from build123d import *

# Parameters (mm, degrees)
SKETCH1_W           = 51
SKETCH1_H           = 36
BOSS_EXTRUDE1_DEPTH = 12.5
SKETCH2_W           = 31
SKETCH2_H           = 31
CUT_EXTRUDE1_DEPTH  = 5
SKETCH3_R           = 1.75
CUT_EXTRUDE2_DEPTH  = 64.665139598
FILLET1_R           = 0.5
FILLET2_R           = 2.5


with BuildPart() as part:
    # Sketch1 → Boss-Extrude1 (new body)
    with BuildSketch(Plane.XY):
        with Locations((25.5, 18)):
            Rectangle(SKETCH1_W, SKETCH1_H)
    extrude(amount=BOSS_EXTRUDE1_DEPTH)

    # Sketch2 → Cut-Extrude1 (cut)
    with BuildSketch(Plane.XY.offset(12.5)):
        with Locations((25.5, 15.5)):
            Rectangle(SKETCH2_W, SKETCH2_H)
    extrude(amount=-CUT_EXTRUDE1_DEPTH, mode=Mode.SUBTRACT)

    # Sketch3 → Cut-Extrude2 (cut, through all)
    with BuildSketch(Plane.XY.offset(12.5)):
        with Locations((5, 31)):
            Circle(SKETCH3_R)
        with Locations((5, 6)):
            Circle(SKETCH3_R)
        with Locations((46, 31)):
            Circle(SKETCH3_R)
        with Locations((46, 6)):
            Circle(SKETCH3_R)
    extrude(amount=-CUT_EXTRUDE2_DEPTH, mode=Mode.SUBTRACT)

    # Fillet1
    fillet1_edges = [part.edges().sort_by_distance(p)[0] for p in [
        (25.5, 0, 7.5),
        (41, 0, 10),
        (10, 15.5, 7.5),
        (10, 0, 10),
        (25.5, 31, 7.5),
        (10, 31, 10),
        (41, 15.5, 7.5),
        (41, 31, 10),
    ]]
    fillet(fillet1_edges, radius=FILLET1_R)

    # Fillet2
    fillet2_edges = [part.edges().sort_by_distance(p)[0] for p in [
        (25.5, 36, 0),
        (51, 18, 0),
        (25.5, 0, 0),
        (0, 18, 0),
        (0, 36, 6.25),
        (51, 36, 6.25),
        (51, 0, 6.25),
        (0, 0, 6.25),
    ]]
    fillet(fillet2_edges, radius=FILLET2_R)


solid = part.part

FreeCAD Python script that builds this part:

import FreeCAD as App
import Part
import Sketcher

V = App.Vector


def edges_at(feature, points):
    """Names of the edges that pass closest to the given points."""
    edges = feature.Shape.Edges
    near = lambda p: min(range(len(edges)), key=lambda i: edges[i].distToShape(Part.Vertex(*p))[0])
    return sorted({f"Edge{near(p) + 1}" for p in points})

doc = App.newDocument("Part")
body = doc.addObject("PartDesign::Body", "Body")

# Sketch on XY plane
sketch1 = doc.addObject("Sketcher::SketchObject", "Sketch")
body.addObject(sketch1)
sketch1.AttachmentSupport = (doc.XY_Plane, [""])
sketch1.MapMode = "FlatFace"
sketch1.addGeometry([
    Part.LineSegment(V(0, 36, 0), V(0, 0, 0)),
    Part.LineSegment(V(0, 0, 0), V(51, 0, 0)),
    Part.LineSegment(V(51, 0, 0), V(51, 36, 0)),
    Part.LineSegment(V(51, 36, 0), V(0, 36, 0)),
], False)
sketch1.addConstraint([
    Sketcher.Constraint("Coincident", 0, 2, 1, 1),
    Sketcher.Constraint("Coincident", 1, 2, 2, 1),
    Sketcher.Constraint("Coincident", 2, 2, 3, 1),
    Sketcher.Constraint("Coincident", 3, 2, 0, 1),
    Sketcher.Constraint("Vertical", 0),
    Sketcher.Constraint("Horizontal", 1),
    Sketcher.Constraint("Vertical", 2),
    Sketcher.Constraint("Horizontal", 3),
    Sketcher.Constraint("Coincident", 0, 2, -1, 1),
    Sketcher.Constraint("DistanceX", 1, 1, 1, 2, 51.0),
    Sketcher.Constraint("DistanceY", 0, 2, 0, 1, 36.0),
])
pad1 = doc.addObject("PartDesign::Pad", "Pad")
body.addObject(pad1)
pad1.Profile = sketch1
pad1.Length = 12.5

# Sketch on XY plane
sketch2 = doc.addObject("Sketcher::SketchObject", "Sketch001")
body.addObject(sketch2)
sketch2.AttachmentSupport = (doc.XY_Plane, [""])
sketch2.MapMode = "FlatFace"
sketch2.AttachmentOffset = App.Placement(V(0, 0, 12.5), App.Rotation())
sketch2.addGeometry([
    Part.LineSegment(V(10, 31, 0), V(10, 0, 0)),
    Part.LineSegment(V(10, 0, 0), V(41, 0, 0)),
    Part.LineSegment(V(41, 0, 0), V(41, 31, 0)),
    Part.LineSegment(V(41, 31, 0), V(10, 31, 0)),
], False)
sketch2.addConstraint([
    Sketcher.Constraint("Coincident", 0, 2, 1, 1),
    Sketcher.Constraint("Coincident", 1, 2, 2, 1),
    Sketcher.Constraint("Coincident", 2, 2, 3, 1),
    Sketcher.Constraint("Coincident", 3, 2, 0, 1),
    Sketcher.Constraint("Vertical", 0),
    Sketcher.Constraint("Horizontal", 1),
    Sketcher.Constraint("Vertical", 2),
    Sketcher.Constraint("Horizontal", 3),
    Sketcher.Constraint("PointOnObject", 0, 2, -1),
    Sketcher.Constraint("Equal", 3, 0),
    Sketcher.Constraint("DistanceX", 1, 1, 1, 2, 31.0),
    Sketcher.Constraint("DistanceX", -1, 1, 0, 2, 10.0),
])
pocket1 = doc.addObject("PartDesign::Pocket", "Pocket")
body.addObject(pocket1)
pocket1.Profile = sketch2
pocket1.Length = 5

# Sketch on XY plane
sketch3 = doc.addObject("Sketcher::SketchObject", "Sketch002")
body.addObject(sketch3)
sketch3.AttachmentSupport = (doc.XY_Plane, [""])
sketch3.MapMode = "FlatFace"
sketch3.AttachmentOffset = App.Placement(V(0, 0, 12.5), App.Rotation())
sketch3.addGeometry([
    Part.Circle(V(5, 31, 0), V(0, 0, 1), 1.8),
    Part.Circle(V(5, 6, 0), V(0, 0, 1), 1.8),
    Part.Circle(V(46, 31, 0), V(0, 0, 1), 1.8),
    Part.Circle(V(46, 6, 0), V(0, 0, 1), 1.8),
], False)
sketch3.addConstraint([
    Sketcher.Constraint("Equal", 0, 1),
    Sketcher.Constraint("Equal", 1, 2),
    Sketcher.Constraint("Equal", 2, 3),
    Sketcher.Constraint("Horizontal", 0, 3, 2, 3),
    Sketcher.Constraint("Horizontal", 1, 3, 3, 3),
    Sketcher.Constraint("Vertical", 0, 3, 1, 3),
    Sketcher.Constraint("Vertical", 2, 3, 3, 3),
    Sketcher.Constraint("Diameter", 0, 3.5),
    Sketcher.Constraint("DistanceX", -1, 1, 0, 3, 5.0),
    Sketcher.Constraint("DistanceY", -1, 1, 0, 3, 31.0),
    Sketcher.Constraint("DistanceY", -1, 1, 1, 3, 6.0),
    Sketcher.Constraint("DistanceX", -1, 1, 2, 3, 46.0),
])
pocket2 = doc.addObject("PartDesign::Pocket", "Pocket001")
body.addObject(pocket2)
pocket2.Profile = sketch3
pocket2.Type = "ThroughAll"
doc.recompute()

fillet = doc.addObject("PartDesign::Fillet", "Fillet")
body.addObject(fillet)
fillet.Base = (pocket2, edges_at(pocket2, [
    (25.5, 0, 7.5),
    (41, 0, 10),
    (10, 15.5, 7.5),
    (10, 0, 10),
    (25.5, 31, 7.5),
    (10, 31, 10),
    (41, 15.5, 7.5),
    (41, 31, 10),
]))
fillet.Radius = 0.5
doc.recompute()

fillet2 = doc.addObject("PartDesign::Fillet", "Fillet001")
body.addObject(fillet2)
fillet2.Base = (fillet, edges_at(fillet, [
    (25.5, 36, 0),
    (51, 18, 0),
    (25.5, 0, 0),
    (0, 18, 0),
    (0, 36, 6.25),
    (51, 36, 6.25),
    (51, 0, 6.25),
    (0, 0, 6.25),
]))
fillet2.Radius = 2.5

doc.recompute()
